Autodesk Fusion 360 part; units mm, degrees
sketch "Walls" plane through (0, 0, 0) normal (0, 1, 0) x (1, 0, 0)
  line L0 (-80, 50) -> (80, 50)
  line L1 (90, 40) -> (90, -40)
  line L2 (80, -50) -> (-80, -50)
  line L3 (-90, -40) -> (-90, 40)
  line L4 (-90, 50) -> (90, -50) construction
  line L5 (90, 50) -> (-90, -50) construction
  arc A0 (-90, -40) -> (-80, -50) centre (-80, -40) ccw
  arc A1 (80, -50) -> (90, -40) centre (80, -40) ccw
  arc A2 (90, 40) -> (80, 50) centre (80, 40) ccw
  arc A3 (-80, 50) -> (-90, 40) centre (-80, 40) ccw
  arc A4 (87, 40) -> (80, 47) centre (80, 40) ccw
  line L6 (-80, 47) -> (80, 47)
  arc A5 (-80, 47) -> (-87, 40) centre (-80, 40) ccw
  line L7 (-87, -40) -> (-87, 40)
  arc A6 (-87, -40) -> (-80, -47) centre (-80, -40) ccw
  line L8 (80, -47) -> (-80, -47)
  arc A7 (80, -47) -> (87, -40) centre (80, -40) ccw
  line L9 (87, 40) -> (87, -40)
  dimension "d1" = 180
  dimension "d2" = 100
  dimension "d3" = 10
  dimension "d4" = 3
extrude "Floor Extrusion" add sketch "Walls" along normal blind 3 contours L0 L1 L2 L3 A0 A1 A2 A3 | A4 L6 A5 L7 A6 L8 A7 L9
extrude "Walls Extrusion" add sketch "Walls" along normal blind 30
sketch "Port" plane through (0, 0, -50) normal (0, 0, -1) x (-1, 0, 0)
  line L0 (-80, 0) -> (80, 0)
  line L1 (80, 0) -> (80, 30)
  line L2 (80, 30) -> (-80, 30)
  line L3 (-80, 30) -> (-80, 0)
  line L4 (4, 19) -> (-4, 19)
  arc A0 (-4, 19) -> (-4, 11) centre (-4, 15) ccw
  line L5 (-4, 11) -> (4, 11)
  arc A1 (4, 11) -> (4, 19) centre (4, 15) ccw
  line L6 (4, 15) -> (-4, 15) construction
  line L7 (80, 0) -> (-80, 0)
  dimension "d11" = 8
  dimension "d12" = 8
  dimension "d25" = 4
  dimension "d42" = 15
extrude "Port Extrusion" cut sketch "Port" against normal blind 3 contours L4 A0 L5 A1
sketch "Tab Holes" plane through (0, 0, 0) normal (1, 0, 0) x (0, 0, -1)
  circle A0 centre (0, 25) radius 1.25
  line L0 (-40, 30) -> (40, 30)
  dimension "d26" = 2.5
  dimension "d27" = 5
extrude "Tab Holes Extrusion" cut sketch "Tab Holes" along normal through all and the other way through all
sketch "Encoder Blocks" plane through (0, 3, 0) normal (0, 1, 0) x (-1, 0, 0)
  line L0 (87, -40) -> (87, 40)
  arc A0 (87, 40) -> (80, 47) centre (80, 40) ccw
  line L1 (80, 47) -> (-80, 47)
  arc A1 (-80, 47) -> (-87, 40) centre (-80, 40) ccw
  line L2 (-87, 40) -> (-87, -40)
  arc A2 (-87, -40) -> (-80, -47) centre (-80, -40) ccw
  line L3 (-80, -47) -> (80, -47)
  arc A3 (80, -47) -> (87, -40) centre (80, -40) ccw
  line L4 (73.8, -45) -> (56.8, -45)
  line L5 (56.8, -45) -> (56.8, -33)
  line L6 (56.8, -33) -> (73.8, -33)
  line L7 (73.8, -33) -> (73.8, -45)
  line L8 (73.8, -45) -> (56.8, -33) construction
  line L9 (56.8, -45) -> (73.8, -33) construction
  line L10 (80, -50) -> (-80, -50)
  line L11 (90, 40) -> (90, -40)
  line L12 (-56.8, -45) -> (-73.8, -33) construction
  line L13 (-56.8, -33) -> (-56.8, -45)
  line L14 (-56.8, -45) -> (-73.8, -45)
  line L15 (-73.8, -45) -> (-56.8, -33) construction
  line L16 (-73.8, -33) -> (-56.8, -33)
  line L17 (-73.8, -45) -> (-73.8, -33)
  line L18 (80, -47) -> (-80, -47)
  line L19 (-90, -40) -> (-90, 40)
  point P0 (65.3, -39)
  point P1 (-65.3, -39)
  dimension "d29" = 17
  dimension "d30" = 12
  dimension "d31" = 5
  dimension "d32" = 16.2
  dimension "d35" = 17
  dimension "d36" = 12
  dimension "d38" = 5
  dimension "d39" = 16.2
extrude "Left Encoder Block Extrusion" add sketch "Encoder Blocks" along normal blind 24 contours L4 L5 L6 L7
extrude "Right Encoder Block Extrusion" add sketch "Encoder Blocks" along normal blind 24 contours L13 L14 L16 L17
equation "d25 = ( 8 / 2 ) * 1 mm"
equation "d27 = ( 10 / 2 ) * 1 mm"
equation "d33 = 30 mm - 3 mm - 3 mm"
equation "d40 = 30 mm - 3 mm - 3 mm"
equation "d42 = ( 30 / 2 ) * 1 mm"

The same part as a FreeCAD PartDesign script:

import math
import FreeCAD as App
import Part
import Sketcher
Q = App.Units.Quantity

doc = App.newDocument("Part")
body = doc.addObject("PartDesign::Body", "Body")

sketch1 = doc.addObject("Sketcher::SketchObject", "Sketch")
body.addObject(sketch1)
sketch1.AttachmentSupport = (doc.XZ_Plane, [""])
sketch1.MapMode = "FlatFace"
sketch1.addGeometry([
    Part.LineSegment(App.Vector(80, -50, 0), App.Vector(-80, -50, 0)),
    Part.ArcOfCircle(Part.Circle(App.Vector(-80, -40, 0), App.Vector(0, 0, 1), 10), math.radians(180), math.radians(270)),
    Part.LineSegment(App.Vector(-90, -40, 0), App.Vector(-90, 40, 0)),
    Part.ArcOfCircle(Part.Circle(App.Vector(-80, 40, 0), App.Vector(0, 0, 1), 10), math.radians(90), math.radians(180)),
    Part.LineSegment(App.Vector(-80, 50, 0), App.Vector(80, 50, 0)),
    Part.ArcOfCircle(Part.Circle(App.Vector(80, 40, 0), App.Vector(0, 0, 1), 10), math.radians(0), math.radians(90)),
    Part.LineSegment(App.Vector(90, 40, 0), App.Vector(90, -40, 0)),
    Part.ArcOfCircle(Part.Circle(App.Vector(80, -40, 0), App.Vector(0, 0, 1), 10), math.radians(-90), math.radians(0)),
], False)
sketch1.addConstraint([
    Sketcher.Constraint("Tangent", 0, 2, 1, 2),
    Sketcher.Constraint("Tangent", 1, 1, 2, 1),
    Sketcher.Constraint("Tangent", 2, 2, 3, 2),
    Sketcher.Constraint("Tangent", 3, 1, 4, 1),
    Sketcher.Constraint("Tangent", 4, 2, 5, 2),
    Sketcher.Constraint("Tangent", 5, 1, 6, 1),
    Sketcher.Constraint("Tangent", 6, 2, 7, 2),
    Sketcher.Constraint("Tangent", 7, 1, 0, 1),
    Sketcher.Constraint("Horizontal", 0),
    Sketcher.Constraint("Vertical", 2),
    Sketcher.Constraint("Horizontal", 4),
    Sketcher.Constraint("Vertical", 6),
    Sketcher.Constraint("Equal", 1, 3),
    Sketcher.Constraint("Equal", 3, 5),
    Sketcher.Constraint("Equal", 5, 7),
    Sketcher.Constraint("Symmetric", 1, 3, 5, 3, -1, 1),
    Sketcher.Constraint("Radius", 1, Q("10 mm")),
    Sketcher.Constraint("DistanceY", 0, 2, 3, 1, Q("100 mm")),
    Sketcher.Constraint("DistanceX", 0, 2, 0, 1, Q("160 mm")),
])
pad1 = doc.addObject("PartDesign::Pad", "Pad")
body.addObject(pad1)
pad1.Profile = sketch1
pad1.Length = 3
pad1.Reversed = True

sketch2 = doc.addObject("Sketcher::SketchObject", "Sketch001")
body.addObject(sketch2)
sketch2.AttachmentSupport = (doc.XZ_Plane, [""])
sketch2.MapMode = "FlatFace"
sketch2.addGeometry([
    Part.LineSegment(App.Vector(80, -50, 0), App.Vector(-80, -50, 0)),
    Part.ArcOfCircle(Part.Circle(App.Vector(-80, -40, 0), App.Vector(0, 0, 1), 10), math.radians(180), math.radians(270)),
    Part.LineSegment(App.Vector(-90, -40, 0), App.Vector(-90, 40, 0)),
    Part.ArcOfCircle(Part.Circle(App.Vector(-80, 40, 0), App.Vector(0, 0, 1), 10), math.radians(90), math.radians(180)),
    Part.LineSegment(App.Vector(-80, 50, 0), App.Vector(80, 50, 0)),
    Part.ArcOfCircle(Part.Circle(App.Vector(80, 40, 0), App.Vector(0, 0, 1), 10), math.radians(0), math.radians(90)),
    Part.LineSegment(App.Vector(90, 40, 0), App.Vector(90, -40, 0)),
    Part.ArcOfCircle(Part.Circle(App.Vector(80, -40, 0), App.Vector(0, 0, 1), 10), math.radians(-90), math.radians(0)),
    Part.ArcOfCircle(Part.Circle(App.Vector(80, -40, 0), App.Vector(0, 0, 1), 7), math.radians(-90), math.radians(0)),
    Part.LineSegment(App.Vector(87, -40, 0), App.Vector(87, 40, 0)),
    Part.ArcOfCircle(Part.Circle(App.Vector(80, 40, 0), App.Vector(0, 0, 1), 7), math.radians(0), math.radians(90)),
    Part.LineSegment(App.Vector(80, 47, 0), App.Vector(-80, 47, 0)),
    Part.ArcOfCircle(Part.Circle(App.Vector(-80, 40, 0), App.Vector(0, 0, 1), 7), math.radians(90), math.radians(180)),
    Part.LineSegment(App.Vector(-87, 40, 0), App.Vector(-87, -40, 0)),
    Part.ArcOfCircle(Part.Circle(App.Vector(-80, -40, 0), App.Vector(0, 0, 1), 7), math.radians(180), math.radians(270)),
    Part.LineSegment(App.Vector(-80, -47, 0), App.Vector(80, -47, 0)),
], False)
sketch2.addConstraint([
    Sketcher.Constraint("Tangent", 0, 2, 1, 2),
    Sketcher.Constraint("Tangent", 1, 1, 2, 1),
    Sketcher.Constraint("Tangent", 2, 2, 3, 2),
    Sketcher.Constraint("Tangent", 3, 1, 4, 1),
    Sketcher.Constraint("Tangent", 4, 2, 5, 2),
    Sketcher.Constraint("Tangent", 5, 1, 6, 1),
    Sketcher.Constraint("Tangent", 6, 2, 7, 2),
    Sketcher.Constraint("Tangent", 7, 1, 0, 1),
    Sketcher.Constraint("Tangent", 8, 2, 9, 1),
    Sketcher.Constraint("Tangent", 9, 2, 10, 1),
    Sketcher.Constraint("Tangent", 10, 2, 11, 1),
    Sketcher.Constraint("Tangent", 11, 2, 12, 1),
    Sketcher.Constraint("Tangent", 12, 2, 13, 1),
    Sketcher.Constraint("Tangent", 13, 2, 14, 1),
    Sketcher.Constraint("Tangent", 14, 2, 15, 1),
    Sketcher.Constraint("Tangent", 15, 2, 8, 1),
    Sketcher.Constraint("Horizontal", 0),
    Sketcher.Constraint("Vertical", 2),
    Sketcher.Constraint("Horizontal", 4),
    Sketcher.Constraint("Vertical", 6),
    Sketcher.Constraint("Vertical", 9),
    Sketcher.Constraint("Horizontal", 11),
    Sketcher.Constraint("Vertical", 13),
    Sketcher.Constraint("Horizontal", 15),
    Sketcher.Constraint("Coincident", 8, 3, 7, 3),
    Sketcher.Constraint("Coincident", 10, 3, 5, 3),
    Sketcher.Constraint("Coincident", 12, 3, 3, 3),
    Sketcher.Constraint("Equal", 1, 3),
    Sketcher.Constraint("Equal", 3, 5),
    Sketcher.Constraint("Equal", 5, 7),
    Sketcher.Constraint("Equal", 12, 14),
    Sketcher.Constraint("Symmetric", 1, 3, 5, 3, -1, 1),
    Sketcher.Constraint("Radius", 1, Q("10 mm")),
    Sketcher.Constraint("Radius", 8, Q("7 mm")),
    Sketcher.Constraint("DistanceX", 0, 2, 0, 1, Q("160 mm")),
    Sketcher.Constraint("DistanceY", 2, 1, 2, 2, Q("80 mm")),
])
pad2 = doc.addObject("PartDesign::Pad", "Pad001")
body.addObject(pad2)
pad2.Profile = sketch2
pad2.Length = 30
pad2.Reversed = True

sketch3 = doc.addObject("Sketcher::SketchObject", "Sketch002")
body.addObject(sketch3)
sketch3.AttachmentSupport = (doc.XY_Plane, [""])
sketch3.MapMode = "FlatFace"
sketch3.AttachmentOffset = App.Placement(App.Vector(0, 0, -50), App.Rotation())
sketch3.addGeometry([
    Part.ArcOfCircle(Part.Circle(App.Vector(-4, 15, 0), App.Vector(0, 0, 1), 4), math.radians(90), math.radians(270)),
    Part.LineSegment(App.Vector(-4, 19, 0), App.Vector(4, 19, 0)),
    Part.ArcOfCircle(Part.Circle(App.Vector(4, 15, 0), App.Vector(0, 0, 1), 4), math.radians(-90), math.radians(90)),
    Part.LineSegment(App.Vector(4, 11, 0), App.Vector(-4, 11, 0)),
], False)
sketch3.addConstraint([
    Sketcher.Constraint("Tangent", 0, 1, 1, 1),
    Sketcher.Constraint("Tangent", 1, 2, 2, 2),
    Sketcher.Constraint("Tangent", 2, 1, 3, 1),
    Sketcher.Constraint("Tangent", 3, 2, 0, 2),
    Sketcher.Constraint("Horizontal", 1),
    Sketcher.Constraint("Horizontal", 3),
    Sketcher.Constraint("Radius", 0, Q("4 mm")),
    Sketcher.Constraint("DistanceX", 1, 1, 1, 2, Q("8 mm")),
    Sketcher.Constraint("DistanceX", 0, 3, -1, 1, Q("4 mm")),
    Sketcher.Constraint("DistanceY", -1, 1, 0, 3, Q("15 mm")),
])
pocket1 = doc.addObject("PartDesign::Pocket", "Pocket")
body.addObject(pocket1)
pocket1.Profile = sketch3
pocket1.Length = 3
pocket1.Reversed = True

sketch4 = doc.addObject("Sketcher::SketchObject", "Sketch003")
body.addObject(sketch4)
sketch4.AttachmentSupport = (doc.YZ_Plane, [""])
sketch4.MapMode = "FlatFace"
sketch4.addGeometry(Part.Circle(App.Vector(25, 0, 0), App.Vector(0, 0, 1), 1.25), False)
sketch4.addConstraint([
    Sketcher.Constraint("PointOnObject", 0, 3, -1),
    Sketcher.Constraint("Diameter", 0, Q("2.5 mm")),
    Sketcher.Constraint("DistanceX", -1, 1, 0, 3, Q("25 mm")),
])
pocket2 = doc.addObject("PartDesign::Pocket", "Pocket001")
body.addObject(pocket2)
pocket2.Profile = sketch4
pocket2.Type = "ThroughAll"
pocket2.Midplane = True

sketch5 = doc.addObject("Sketcher::SketchObject", "Sketch004")
body.addObject(sketch5)
sketch5.AttachmentSupport = (doc.XZ_Plane, [""])
sketch5.MapMode = "FlatFace"
sketch5.AttachmentOffset = App.Placement(App.Vector(0, 0, -3), App.Rotation())
sketch5.addGeometry([
    Part.LineSegment(App.Vector(-56.8, -45, 0), App.Vector(-73.8, -45, 0)),
    Part.LineSegment(App.Vector(-73.8, -45, 0), App.Vector(-73.8, -33, 0)),
    Part.LineSegment(App.Vector(-73.8, -33, 0), App.Vector(-56.8, -33, 0)),
    Part.LineSegment(App.Vector(-56.8, -33, 0), App.Vector(-56.8, -45, 0)),
], False)
sketch5.addConstraint([
    Sketcher.Constraint("Coincident", 0, 2, 1, 1),
    Sketcher.Constraint("Coincident", 1, 2, 2, 1),
    Sketcher.Constraint("Coincident", 2, 2, 3, 1),
    Sketcher.Constraint("Coincident", 3, 2, 0, 1),
    Sketcher.Constraint("Horizontal", 0),
    Sketcher.Constraint("Vertical", 1),
    Sketcher.Constraint("Horizontal", 2),
    Sketcher.Constraint("Vertical", 3),
    Sketcher.Constraint("DistanceX", 0, 2, 0, 1, Q("17 mm")),
    Sketcher.Constraint("DistanceY", 1, 1, 1, 2, Q("12 mm")),
    Sketcher.Constraint("DistanceY", 0, 2, -1, 1, Q("45 mm")),
    Sketcher.Constraint("DistanceX", 0, 2, -1, 1, Q("73.8 mm")),
])
pad3 = doc.addObject("PartDesign::Pad", "Pad002")
body.addObject(pad3)
pad3.Profile = sketch5
pad3.Length = 24
pad3.Reversed = True

sketch6 = doc.addObject("Sketcher::SketchObject", "Sketch005")
body.addObject(sketch6)
sketch6.AttachmentSupport = (doc.XZ_Plane, [""])
sketch6.MapMode = "FlatFace"
sketch6.AttachmentOffset = App.Placement(App.Vector(0, 0, -3), App.Rotation())
sketch6.addGeometry([
    Part.LineSegment(App.Vector(56.8, -45, 0), App.Vector(56.8, -33, 0)),
    Part.LineSegment(App.Vector(56.8, -33, 0), App.Vector(73.8, -33, 0)),
    Part.LineSegment(App.Vector(73.8, -33, 0), App.Vector(73.8, -45, 0)),
    Part.LineSegment(App.Vector(73.8, -45, 0), App.Vector(56.8, -45, 0)),
], False)
sketch6.addConstraint([
    Sketcher.Constraint("Coincident", 0, 2, 1, 1),
    Sketcher.Constraint("Coincident", 1, 2, 2, 1),
    Sketcher.Constraint("Coincident", 2, 2, 3, 1),
    Sketcher.Constraint("Coincident", 3, 2, 0, 1),
    Sketcher.Constraint("Vertical", 0),
    Sketcher.Constraint("Horizontal", 1),
    Sketcher.Constraint("Vertical", 2),
    Sketcher.Constraint("Horizontal", 3),
    Sketcher.Constraint("DistanceX", 1, 1, 1, 2, Q("17 mm")),
    Sketcher.Constraint("DistanceY", 0, 1, 0, 2, Q("12 mm")),
    Sketcher.Constraint("DistanceY", 0, 2, -1, 1, Q("33 mm")),
    Sketcher.Constraint("DistanceX", -1, 1, 0, 2, Q("56.8 mm")),
])
pad4 = doc.addObject("PartDesign::Pad", "Pad003")
body.addObject(pad4)
pad4.Profile = sketch6
pad4.Length = 24
pad4.Reversed = True

doc.recompute()
